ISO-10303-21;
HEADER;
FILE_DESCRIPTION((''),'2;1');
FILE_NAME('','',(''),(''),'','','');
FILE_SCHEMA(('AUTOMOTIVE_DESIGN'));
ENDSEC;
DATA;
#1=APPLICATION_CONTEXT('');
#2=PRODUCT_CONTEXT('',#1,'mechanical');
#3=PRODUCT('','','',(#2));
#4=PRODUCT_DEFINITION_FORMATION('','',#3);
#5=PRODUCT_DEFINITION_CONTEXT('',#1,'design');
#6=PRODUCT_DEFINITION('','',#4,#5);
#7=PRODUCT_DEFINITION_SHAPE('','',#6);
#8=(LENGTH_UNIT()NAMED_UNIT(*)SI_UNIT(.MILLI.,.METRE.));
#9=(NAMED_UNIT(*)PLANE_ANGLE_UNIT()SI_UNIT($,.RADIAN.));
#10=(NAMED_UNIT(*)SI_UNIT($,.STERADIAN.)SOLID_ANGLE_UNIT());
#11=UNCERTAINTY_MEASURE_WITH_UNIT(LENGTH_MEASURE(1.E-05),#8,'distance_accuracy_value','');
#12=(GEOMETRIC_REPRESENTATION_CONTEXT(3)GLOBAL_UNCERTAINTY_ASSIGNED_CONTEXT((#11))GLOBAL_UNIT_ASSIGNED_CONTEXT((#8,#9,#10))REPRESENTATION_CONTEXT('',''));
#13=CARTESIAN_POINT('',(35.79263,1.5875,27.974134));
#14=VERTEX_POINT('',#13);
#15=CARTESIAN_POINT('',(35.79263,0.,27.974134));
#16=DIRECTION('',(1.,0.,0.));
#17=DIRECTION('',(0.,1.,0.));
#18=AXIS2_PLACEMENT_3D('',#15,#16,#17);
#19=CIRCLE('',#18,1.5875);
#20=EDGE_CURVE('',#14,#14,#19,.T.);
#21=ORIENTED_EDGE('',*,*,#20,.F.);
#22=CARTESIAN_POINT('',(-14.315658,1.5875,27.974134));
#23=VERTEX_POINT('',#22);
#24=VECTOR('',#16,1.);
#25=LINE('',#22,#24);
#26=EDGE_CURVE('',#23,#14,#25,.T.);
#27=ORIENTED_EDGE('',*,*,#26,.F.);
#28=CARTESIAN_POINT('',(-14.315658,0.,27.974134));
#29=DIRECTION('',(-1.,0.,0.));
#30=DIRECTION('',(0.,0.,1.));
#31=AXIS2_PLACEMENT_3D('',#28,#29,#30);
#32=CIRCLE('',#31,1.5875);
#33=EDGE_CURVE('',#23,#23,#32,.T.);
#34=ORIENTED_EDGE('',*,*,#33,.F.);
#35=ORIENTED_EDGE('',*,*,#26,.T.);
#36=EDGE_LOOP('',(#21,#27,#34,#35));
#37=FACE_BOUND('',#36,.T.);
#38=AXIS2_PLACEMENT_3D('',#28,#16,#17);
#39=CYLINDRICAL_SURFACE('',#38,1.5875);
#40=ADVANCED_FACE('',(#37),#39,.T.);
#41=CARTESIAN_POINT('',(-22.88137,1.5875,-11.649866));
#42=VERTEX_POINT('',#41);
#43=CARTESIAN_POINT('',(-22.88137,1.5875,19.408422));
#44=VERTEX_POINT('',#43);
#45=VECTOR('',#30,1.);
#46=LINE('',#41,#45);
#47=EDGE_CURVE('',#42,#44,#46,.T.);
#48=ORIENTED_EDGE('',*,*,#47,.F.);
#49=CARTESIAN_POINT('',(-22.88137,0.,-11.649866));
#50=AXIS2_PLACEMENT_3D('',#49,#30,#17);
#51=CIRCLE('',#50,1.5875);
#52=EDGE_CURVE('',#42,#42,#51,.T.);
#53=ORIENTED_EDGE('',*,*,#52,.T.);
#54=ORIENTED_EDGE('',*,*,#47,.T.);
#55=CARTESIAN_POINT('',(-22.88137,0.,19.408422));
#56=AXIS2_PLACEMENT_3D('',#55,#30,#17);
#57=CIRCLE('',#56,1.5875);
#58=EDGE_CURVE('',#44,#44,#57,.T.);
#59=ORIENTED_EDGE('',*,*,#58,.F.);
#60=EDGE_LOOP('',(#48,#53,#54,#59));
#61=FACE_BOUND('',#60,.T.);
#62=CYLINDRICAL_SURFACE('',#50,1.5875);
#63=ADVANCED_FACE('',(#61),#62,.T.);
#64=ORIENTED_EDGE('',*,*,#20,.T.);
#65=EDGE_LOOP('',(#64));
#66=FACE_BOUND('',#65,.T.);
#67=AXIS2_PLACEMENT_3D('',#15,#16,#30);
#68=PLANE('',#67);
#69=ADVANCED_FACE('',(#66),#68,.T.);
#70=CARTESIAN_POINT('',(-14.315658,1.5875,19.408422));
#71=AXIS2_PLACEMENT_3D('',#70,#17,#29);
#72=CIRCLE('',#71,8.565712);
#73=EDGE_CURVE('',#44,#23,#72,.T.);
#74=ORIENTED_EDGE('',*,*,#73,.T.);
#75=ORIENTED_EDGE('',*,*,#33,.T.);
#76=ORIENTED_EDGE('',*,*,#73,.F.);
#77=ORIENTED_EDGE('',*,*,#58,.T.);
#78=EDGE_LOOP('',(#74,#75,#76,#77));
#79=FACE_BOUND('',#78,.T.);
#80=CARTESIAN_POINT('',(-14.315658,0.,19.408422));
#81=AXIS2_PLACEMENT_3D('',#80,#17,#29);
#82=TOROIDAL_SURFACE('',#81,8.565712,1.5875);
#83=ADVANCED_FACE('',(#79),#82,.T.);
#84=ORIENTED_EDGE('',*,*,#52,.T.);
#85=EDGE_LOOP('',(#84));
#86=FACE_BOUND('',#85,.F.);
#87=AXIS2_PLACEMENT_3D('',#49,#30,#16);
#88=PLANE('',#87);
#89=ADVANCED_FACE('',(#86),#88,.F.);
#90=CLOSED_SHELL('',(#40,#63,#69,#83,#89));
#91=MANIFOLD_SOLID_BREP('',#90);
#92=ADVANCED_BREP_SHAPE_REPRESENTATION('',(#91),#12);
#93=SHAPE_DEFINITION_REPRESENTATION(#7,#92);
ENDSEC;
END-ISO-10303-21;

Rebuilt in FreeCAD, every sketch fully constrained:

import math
import FreeCAD as App
import Part
import Sketcher
from FreeCAD import Vector
Q = App.Units.Quantity

doc = App.newDocument("Part")
params = doc.addObject("Spreadsheet::Sheet", "Params")
for row, (alias, value) in enumerate([
    ("sketch1_diameter", "0.125 in"),
], start=1):
    params.set(f"A{row}", alias)
    params.set(f"B{row}", "=" + value)
    params.setAlias(f"B{row}", alias)

body = doc.addObject("PartDesign::Body", "Body")

sketch1 = body.newObject("Sketcher::SketchObject", "Sketch")
sketch1.AttachmentSupport = (doc.getObject("YZ_Plane"), [""])
sketch1.MapMode = "FlatFace"
sketch1.AttachmentOffset = App.Placement(Vector(0, 0, 35.79263), App.Rotation())
sketch1.addGeometry(Part.Circle(Vector(0, 28, 0), Vector(0, 0, 1), 1.6), False)
sketch1.addConstraint([
    Sketcher.Constraint("PointOnObject", 0, 3, -2),
    Sketcher.Constraint("Diameter", 0, Q("0.125 in")),
    Sketcher.Constraint("DistanceY", -1, 1, 0, 3, 27.974134),
])
sketch1.setExpression("Constraints[1]", "Params.sketch1_diameter")

sketch2 = body.newObject("Sketcher::SketchObject", "Sketch001")
sketch2.AttachmentSupport = (doc.getObject("XZ_Plane"), [""])
sketch2.MapMode = "FlatFace"
sketch2.addGeometry([
    Part.LineSegment(Vector(-23, -12, 0), Vector(-23, 19, 0)),
    Part.ArcOfCircle(Part.Circle(Vector(-14, 19, 0), Vector(0, 0, 1), 9), math.radians(90), math.radians(180)),
    Part.LineSegment(Vector(-14, 28, 0), Vector(36, 28, 0)),
], False)
sketch2.addConstraint([
    Sketcher.Constraint("Tangent", 0, 2, 1, 2),
    Sketcher.Constraint("Tangent", 1, 1, 2, 1),
    Sketcher.Constraint("Vertical", 0),
    Sketcher.Constraint("Horizontal", 2),
    Sketcher.Constraint("DistanceY", 0, 1, 1, 1, Q("1.56 in")),
    Sketcher.Constraint("DistanceX", 0, 2, 2, 2, Q("2.31 in")),
    Sketcher.Constraint("Radius", 1, 8.565712),
    Sketcher.Constraint("DistanceY", -1, 1, 1, 3, 19.408422),
    Sketcher.Constraint("DistanceX", 0, 1, -1, 1, 22.88137),
])
doc.recompute()

additivepipe = body.newObject("PartDesign::AdditivePipe", "AdditivePipe")
additivepipe.Profile = sketch1
additivepipe.Spine = (sketch2, ["Edge1", "Edge2", "Edge3"])

doc.recompute()
